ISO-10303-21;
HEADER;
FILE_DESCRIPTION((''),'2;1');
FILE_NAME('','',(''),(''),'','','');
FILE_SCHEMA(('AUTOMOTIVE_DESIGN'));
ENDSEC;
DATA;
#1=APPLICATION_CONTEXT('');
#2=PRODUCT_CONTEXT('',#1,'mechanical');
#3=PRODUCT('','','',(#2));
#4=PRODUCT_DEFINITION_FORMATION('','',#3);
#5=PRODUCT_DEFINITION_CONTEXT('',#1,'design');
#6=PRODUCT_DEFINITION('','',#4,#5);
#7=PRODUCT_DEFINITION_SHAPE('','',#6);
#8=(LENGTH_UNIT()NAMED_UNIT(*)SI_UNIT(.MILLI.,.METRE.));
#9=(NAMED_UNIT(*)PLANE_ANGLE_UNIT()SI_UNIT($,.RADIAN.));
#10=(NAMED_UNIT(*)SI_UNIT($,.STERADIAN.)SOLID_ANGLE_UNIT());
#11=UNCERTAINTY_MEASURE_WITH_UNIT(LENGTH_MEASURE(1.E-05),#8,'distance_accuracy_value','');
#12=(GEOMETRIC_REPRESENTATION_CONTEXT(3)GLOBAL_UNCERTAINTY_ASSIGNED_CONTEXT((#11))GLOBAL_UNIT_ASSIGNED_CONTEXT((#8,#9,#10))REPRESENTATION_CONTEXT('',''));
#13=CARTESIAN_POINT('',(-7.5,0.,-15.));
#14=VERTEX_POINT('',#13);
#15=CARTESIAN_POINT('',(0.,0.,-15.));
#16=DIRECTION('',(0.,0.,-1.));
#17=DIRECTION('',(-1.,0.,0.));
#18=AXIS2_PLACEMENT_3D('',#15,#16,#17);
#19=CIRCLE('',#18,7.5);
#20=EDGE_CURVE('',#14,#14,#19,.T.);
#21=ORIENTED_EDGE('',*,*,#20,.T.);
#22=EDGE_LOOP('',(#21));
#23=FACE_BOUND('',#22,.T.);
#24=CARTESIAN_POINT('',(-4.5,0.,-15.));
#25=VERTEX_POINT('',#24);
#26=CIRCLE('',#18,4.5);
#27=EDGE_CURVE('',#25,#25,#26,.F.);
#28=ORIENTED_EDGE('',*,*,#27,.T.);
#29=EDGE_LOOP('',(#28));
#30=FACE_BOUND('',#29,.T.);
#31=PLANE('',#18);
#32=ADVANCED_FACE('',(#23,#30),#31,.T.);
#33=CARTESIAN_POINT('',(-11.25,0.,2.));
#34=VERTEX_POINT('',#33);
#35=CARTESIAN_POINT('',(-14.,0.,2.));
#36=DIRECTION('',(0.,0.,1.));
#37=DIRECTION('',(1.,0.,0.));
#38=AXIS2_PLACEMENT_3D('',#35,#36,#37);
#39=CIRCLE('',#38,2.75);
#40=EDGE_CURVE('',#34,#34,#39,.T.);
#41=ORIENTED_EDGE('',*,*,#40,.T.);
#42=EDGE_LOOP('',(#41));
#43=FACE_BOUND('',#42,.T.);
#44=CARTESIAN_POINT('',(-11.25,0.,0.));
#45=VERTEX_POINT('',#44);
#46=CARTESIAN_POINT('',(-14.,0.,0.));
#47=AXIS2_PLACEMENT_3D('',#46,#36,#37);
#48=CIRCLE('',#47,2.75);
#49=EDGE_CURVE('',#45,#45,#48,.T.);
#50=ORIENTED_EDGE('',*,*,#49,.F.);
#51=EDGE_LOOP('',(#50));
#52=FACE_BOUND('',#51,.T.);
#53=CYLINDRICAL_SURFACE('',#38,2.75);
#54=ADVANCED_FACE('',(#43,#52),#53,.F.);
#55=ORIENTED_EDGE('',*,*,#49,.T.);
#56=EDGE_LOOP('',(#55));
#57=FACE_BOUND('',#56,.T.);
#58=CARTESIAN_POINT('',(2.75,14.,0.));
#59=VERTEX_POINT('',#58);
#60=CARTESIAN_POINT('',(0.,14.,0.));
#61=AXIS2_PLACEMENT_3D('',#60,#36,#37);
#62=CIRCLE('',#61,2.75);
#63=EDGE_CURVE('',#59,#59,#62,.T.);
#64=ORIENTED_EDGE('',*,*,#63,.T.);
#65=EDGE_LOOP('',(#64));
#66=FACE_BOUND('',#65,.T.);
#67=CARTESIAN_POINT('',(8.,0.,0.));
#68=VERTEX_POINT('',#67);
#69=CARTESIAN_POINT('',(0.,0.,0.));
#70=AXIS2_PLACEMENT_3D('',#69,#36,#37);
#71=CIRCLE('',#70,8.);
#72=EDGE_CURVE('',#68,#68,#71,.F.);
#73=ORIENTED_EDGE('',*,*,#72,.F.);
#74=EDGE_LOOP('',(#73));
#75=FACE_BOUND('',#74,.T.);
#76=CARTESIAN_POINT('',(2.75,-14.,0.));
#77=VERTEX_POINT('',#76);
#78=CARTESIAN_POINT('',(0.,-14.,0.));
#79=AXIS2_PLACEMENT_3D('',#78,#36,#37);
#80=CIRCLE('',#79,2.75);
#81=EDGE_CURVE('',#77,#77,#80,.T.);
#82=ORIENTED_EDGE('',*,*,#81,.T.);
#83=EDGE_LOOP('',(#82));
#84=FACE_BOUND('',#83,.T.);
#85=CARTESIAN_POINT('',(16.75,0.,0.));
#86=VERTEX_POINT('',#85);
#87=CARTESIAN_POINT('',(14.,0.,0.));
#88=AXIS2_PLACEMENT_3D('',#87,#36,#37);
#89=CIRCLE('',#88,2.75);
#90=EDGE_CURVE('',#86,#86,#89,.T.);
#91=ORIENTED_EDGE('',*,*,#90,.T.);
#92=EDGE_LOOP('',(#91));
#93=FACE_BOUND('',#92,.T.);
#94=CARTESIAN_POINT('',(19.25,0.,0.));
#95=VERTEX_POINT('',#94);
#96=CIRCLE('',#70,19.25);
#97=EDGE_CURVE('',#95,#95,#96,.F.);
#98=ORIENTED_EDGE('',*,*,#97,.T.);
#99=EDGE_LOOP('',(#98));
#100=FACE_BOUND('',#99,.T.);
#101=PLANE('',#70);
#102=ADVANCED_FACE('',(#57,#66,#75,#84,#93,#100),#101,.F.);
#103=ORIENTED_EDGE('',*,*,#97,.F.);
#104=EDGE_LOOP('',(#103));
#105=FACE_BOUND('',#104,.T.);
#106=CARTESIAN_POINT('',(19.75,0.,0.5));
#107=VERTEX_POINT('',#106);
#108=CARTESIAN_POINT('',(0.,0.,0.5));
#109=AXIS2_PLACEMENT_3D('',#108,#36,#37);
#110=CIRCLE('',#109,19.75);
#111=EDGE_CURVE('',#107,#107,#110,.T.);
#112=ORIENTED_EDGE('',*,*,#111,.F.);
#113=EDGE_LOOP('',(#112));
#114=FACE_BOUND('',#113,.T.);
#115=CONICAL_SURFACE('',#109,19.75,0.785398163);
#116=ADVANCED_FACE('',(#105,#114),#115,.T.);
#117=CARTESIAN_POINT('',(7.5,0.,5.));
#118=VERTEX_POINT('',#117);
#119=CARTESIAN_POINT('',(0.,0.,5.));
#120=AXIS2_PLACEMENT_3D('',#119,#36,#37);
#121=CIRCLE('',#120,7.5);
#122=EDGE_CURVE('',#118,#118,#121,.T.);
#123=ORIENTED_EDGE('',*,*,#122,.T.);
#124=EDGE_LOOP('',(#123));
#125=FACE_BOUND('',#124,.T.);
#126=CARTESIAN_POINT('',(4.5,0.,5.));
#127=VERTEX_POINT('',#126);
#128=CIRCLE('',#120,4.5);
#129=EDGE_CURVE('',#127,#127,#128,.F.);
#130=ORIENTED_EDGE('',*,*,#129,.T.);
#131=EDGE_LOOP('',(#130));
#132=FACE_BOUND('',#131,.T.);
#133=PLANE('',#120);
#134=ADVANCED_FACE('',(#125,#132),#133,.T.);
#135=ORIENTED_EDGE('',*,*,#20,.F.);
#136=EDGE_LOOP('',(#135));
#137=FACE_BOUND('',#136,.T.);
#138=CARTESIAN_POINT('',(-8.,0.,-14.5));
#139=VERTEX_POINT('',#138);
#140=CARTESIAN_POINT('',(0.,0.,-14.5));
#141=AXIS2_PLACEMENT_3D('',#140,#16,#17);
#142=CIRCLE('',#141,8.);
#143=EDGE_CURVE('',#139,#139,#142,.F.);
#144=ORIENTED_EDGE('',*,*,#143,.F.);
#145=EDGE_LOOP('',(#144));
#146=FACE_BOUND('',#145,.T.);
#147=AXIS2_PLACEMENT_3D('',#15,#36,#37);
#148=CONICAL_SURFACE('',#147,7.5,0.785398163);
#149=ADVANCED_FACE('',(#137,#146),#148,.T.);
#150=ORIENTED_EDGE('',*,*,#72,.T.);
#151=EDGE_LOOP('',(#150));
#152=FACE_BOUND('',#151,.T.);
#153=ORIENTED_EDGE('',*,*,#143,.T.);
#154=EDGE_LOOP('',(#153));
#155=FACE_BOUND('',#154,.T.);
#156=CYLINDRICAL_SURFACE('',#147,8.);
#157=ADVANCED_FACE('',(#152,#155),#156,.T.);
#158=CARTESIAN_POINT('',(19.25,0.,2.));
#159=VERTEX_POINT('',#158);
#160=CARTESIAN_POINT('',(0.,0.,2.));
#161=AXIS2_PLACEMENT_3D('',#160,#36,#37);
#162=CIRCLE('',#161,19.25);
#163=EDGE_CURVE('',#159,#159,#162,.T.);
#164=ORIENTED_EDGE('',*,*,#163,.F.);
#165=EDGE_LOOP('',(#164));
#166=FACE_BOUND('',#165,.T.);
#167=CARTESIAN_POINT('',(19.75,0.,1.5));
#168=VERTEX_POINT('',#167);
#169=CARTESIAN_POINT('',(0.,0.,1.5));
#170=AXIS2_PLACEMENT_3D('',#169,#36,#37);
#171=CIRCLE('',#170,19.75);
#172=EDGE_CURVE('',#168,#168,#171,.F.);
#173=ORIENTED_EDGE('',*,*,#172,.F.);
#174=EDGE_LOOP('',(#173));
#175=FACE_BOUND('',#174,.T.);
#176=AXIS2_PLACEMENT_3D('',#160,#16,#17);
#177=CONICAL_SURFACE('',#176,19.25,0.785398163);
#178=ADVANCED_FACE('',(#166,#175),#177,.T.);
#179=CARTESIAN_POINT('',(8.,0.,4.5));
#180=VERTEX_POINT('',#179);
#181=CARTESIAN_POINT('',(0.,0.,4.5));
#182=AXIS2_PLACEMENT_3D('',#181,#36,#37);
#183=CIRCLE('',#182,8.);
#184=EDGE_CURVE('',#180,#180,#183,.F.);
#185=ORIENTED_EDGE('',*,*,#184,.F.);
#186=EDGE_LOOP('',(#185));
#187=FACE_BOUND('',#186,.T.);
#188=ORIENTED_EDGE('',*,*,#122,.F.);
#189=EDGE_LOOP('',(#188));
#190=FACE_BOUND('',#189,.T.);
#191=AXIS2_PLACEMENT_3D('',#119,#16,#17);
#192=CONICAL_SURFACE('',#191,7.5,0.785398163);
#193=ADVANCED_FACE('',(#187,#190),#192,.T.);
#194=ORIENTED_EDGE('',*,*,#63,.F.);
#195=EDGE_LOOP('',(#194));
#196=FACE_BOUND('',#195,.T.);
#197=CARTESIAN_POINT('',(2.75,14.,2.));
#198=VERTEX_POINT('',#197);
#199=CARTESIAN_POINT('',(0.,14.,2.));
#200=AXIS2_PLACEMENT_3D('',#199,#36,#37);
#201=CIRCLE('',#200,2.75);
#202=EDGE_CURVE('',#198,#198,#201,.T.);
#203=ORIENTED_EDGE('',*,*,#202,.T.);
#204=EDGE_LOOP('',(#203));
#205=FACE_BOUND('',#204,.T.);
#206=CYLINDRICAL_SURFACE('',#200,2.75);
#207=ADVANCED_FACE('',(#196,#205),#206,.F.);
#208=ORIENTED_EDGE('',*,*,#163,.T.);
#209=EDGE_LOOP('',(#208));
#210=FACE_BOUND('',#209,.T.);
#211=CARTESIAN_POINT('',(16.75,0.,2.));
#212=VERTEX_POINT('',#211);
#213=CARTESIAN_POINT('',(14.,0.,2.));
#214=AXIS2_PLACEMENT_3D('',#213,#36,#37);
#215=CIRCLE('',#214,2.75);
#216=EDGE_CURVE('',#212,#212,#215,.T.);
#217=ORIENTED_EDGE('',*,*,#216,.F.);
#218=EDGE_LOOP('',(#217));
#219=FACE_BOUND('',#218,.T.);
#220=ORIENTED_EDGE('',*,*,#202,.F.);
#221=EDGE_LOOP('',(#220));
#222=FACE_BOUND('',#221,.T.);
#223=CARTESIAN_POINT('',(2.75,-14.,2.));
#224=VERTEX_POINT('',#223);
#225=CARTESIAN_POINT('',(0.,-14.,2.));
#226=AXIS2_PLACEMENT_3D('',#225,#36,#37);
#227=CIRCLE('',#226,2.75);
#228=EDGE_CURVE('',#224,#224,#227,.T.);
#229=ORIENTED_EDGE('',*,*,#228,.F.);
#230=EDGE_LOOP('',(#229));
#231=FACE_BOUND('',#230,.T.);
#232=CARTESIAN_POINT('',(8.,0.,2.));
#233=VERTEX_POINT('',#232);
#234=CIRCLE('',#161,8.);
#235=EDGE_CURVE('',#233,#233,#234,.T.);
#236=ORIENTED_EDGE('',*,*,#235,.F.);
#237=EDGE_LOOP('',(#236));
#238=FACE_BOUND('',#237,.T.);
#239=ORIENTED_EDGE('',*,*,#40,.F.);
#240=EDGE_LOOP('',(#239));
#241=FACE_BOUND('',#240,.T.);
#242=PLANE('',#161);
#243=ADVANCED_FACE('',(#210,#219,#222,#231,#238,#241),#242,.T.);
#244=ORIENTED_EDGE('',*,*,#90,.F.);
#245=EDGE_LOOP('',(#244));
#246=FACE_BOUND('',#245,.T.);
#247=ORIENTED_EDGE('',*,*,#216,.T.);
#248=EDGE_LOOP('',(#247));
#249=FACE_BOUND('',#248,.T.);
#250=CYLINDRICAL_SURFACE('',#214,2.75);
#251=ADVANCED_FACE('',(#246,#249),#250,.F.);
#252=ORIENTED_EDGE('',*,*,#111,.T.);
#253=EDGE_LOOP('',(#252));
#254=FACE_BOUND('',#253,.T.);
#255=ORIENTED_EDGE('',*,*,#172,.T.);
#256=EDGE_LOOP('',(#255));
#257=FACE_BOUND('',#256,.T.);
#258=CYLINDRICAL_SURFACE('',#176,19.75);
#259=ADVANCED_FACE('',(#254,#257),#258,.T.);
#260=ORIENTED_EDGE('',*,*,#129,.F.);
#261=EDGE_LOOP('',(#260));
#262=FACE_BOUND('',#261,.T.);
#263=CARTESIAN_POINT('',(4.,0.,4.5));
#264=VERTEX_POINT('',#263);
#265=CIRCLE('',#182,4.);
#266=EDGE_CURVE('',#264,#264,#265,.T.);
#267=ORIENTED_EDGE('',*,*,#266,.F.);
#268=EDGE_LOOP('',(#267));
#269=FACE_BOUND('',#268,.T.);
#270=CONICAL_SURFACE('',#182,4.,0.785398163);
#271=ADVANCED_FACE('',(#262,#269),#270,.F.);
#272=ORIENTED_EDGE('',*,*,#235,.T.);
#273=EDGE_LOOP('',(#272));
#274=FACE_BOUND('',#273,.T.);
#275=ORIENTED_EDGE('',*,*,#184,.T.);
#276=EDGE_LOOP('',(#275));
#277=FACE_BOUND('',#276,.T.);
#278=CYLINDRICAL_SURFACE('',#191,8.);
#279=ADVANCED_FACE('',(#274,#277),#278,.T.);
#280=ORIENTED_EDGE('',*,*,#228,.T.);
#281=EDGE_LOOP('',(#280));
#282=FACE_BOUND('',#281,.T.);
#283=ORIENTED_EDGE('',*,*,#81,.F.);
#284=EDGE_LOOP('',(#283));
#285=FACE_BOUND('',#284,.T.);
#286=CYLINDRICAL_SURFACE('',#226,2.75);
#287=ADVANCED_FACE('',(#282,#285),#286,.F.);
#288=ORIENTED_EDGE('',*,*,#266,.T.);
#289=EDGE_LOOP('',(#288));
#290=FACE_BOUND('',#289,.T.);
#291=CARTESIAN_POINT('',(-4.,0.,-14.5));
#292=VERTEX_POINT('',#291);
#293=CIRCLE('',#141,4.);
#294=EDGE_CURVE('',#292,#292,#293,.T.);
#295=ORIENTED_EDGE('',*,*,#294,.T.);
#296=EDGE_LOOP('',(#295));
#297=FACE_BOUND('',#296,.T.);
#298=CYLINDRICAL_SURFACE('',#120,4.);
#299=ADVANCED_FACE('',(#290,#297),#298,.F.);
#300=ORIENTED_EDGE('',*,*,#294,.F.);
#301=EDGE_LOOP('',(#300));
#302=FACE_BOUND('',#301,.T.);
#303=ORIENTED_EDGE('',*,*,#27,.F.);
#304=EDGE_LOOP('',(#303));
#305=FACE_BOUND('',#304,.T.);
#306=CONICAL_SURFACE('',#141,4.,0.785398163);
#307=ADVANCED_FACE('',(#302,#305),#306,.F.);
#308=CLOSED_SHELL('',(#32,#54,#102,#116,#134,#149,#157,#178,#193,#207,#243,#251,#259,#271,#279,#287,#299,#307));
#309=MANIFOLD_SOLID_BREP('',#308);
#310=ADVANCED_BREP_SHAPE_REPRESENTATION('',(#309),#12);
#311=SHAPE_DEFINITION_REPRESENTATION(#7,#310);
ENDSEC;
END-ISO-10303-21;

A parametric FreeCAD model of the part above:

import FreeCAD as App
import Part
import Sketcher

V = App.Vector


def edges_at(feature, points):
    """Names of the edges that pass closest to the given points."""
    edges = feature.Shape.Edges
    near = lambda p: min(range(len(edges)), key=lambda i: edges[i].distToShape(Part.Vertex(*p))[0])
    return sorted({f"Edge{near(p) + 1}" for p in points})

doc = App.newDocument("Part")
body = doc.addObject("PartDesign::Body", "Body")

# Sketch on XY plane
sketch1 = body.newObject("Sketcher::SketchObject", "Sketch")
sketch1.AttachmentSupport = (doc.getObject("XY_Plane"), [""])
sketch1.MapMode = "FlatFace"
sketch1.addGeometry(Part.Circle(V(0, 0, 0), V(0, 0, 1), 19.75), False)
sketch1.addConstraint([
    Sketcher.Constraint("Coincident", 0, 3, -1, 1),
    Sketcher.Constraint("Diameter", 0, 39.5),
])
pad1 = body.newObject("PartDesign::Pad", "Pad")
pad1.Profile = sketch1
pad1.Length = 2

# Sketch on XY plane
sketch2 = body.newObject("Sketcher::SketchObject", "Sketch001")
sketch2.AttachmentSupport = (doc.getObject("XY_Plane"), [""])
sketch2.MapMode = "FlatFace"
sketch2.AttachmentOffset = App.Placement(V(0, 0, 2), App.Rotation())
sketch2.addGeometry(Part.Circle(V(0, 0, 0), V(0, 0, 1), 8), False)
sketch2.addConstraint([
    Sketcher.Constraint("Coincident", 0, 3, -1, 1),
    Sketcher.Constraint("Diameter", 0, 16.0),
])
pad2 = body.newObject("PartDesign::Pad", "Pad001")
pad2.Profile = sketch2
pad2.Length = 3

# Sketch on XY plane
sketch3 = body.newObject("Sketcher::SketchObject", "Sketch002")
sketch3.AttachmentSupport = (doc.getObject("XY_Plane"), [""])
sketch3.MapMode = "FlatFace"
sketch3.AttachmentOffset = App.Placement(V(0, 0, -15), App.Rotation())
sketch3.addGeometry(Part.Circle(V(0, 0, 0), V(0, 0, 1), 8), False)
sketch3.addConstraint([
    Sketcher.Constraint("Coincident", 0, 3, -1, 1),
    Sketcher.Constraint("Diameter", 0, 16.0),
])
pad3 = body.newObject("PartDesign::Pad", "Pad002")
pad3.Profile = sketch3
pad3.Length = 15

# Sketch on XY plane
sketch4 = body.newObject("Sketcher::SketchObject", "Sketch003")
sketch4.AttachmentSupport = (doc.getObject("XY_Plane"), [""])
sketch4.MapMode = "FlatFace"
sketch4.AttachmentOffset = App.Placement(V(0, 0, 5), App.Rotation())
sketch4.addGeometry(Part.Circle(V(0, 0, 0), V(0, 0, 1), 4), False)
sketch4.addConstraint([
    Sketcher.Constraint("Coincident", 0, 3, -1, 1),
    Sketcher.Constraint("Diameter", 0, 8.0),
])
doc.recompute()
hole = body.newObject("PartDesign::Hole", "Hole")
hole.Profile = sketch4
hole.ThreadType = "None"
hole.Diameter = 8
hole.DepthType = "ThroughAll"

# Sketch on XY plane
sketch5 = body.newObject("Sketcher::SketchObject", "Sketch004")
sketch5.AttachmentSupport = (doc.getObject("XY_Plane"), [""])
sketch5.MapMode = "FlatFace"
sketch5.AttachmentOffset = App.Placement(V(0, 0, 2), App.Rotation())
sketch5.addGeometry([
    Part.Circle(V(0, 14, 0), V(0, 0, 1), 2.75),
    Part.Circle(V(0, -14, 0), V(0, 0, 1), 2.75),
    Part.Circle(V(-14, 0, 0), V(0, 0, 1), 2.75),
    Part.Circle(V(14, 0, 0), V(0, 0, 1), 2.75),
], False)
sketch5.addConstraint([
    Sketcher.Constraint("Equal", 0, 1),
    Sketcher.Constraint("Equal", 1, 2),
    Sketcher.Constraint("Equal", 2, 3),
    Sketcher.Constraint("Symmetric", 0, 3, 1, 3, -1, 1),
    Sketcher.Constraint("Symmetric", 2, 3, 3, 3, -1, 1),
    Sketcher.Constraint("PointOnObject", 0, 3, -2),
    Sketcher.Constraint("PointOnObject", 2, 3, -1),
    Sketcher.Constraint("Diameter", 0, 5.5),
    Sketcher.Constraint("DistanceY", -1, 1, 0, 3, 14.0),
    Sketcher.Constraint("DistanceX", 2, 3, -1, 1, 14.0),
])
doc.recompute()
hole2 = body.newObject("PartDesign::Hole", "Hole001")
hole2.Profile = sketch5
hole2.ThreadType = "None"
hole2.Diameter = 5.5
hole2.DepthType = "ThroughAll"
doc.recompute()

chamfer = body.newObject("PartDesign::Chamfer", "Chamfer")
chamfer.Base = (hole2, edges_at(hole2, [
    (-8, 0, -15),
    (4, 0, 5),
    (4, 0, -15),
    (-19.75, 0, 0),
    (-19.75, 0, 2),
    (-8, 0, 5),
]))
chamfer.Size = 0.5

doc.recompute()
